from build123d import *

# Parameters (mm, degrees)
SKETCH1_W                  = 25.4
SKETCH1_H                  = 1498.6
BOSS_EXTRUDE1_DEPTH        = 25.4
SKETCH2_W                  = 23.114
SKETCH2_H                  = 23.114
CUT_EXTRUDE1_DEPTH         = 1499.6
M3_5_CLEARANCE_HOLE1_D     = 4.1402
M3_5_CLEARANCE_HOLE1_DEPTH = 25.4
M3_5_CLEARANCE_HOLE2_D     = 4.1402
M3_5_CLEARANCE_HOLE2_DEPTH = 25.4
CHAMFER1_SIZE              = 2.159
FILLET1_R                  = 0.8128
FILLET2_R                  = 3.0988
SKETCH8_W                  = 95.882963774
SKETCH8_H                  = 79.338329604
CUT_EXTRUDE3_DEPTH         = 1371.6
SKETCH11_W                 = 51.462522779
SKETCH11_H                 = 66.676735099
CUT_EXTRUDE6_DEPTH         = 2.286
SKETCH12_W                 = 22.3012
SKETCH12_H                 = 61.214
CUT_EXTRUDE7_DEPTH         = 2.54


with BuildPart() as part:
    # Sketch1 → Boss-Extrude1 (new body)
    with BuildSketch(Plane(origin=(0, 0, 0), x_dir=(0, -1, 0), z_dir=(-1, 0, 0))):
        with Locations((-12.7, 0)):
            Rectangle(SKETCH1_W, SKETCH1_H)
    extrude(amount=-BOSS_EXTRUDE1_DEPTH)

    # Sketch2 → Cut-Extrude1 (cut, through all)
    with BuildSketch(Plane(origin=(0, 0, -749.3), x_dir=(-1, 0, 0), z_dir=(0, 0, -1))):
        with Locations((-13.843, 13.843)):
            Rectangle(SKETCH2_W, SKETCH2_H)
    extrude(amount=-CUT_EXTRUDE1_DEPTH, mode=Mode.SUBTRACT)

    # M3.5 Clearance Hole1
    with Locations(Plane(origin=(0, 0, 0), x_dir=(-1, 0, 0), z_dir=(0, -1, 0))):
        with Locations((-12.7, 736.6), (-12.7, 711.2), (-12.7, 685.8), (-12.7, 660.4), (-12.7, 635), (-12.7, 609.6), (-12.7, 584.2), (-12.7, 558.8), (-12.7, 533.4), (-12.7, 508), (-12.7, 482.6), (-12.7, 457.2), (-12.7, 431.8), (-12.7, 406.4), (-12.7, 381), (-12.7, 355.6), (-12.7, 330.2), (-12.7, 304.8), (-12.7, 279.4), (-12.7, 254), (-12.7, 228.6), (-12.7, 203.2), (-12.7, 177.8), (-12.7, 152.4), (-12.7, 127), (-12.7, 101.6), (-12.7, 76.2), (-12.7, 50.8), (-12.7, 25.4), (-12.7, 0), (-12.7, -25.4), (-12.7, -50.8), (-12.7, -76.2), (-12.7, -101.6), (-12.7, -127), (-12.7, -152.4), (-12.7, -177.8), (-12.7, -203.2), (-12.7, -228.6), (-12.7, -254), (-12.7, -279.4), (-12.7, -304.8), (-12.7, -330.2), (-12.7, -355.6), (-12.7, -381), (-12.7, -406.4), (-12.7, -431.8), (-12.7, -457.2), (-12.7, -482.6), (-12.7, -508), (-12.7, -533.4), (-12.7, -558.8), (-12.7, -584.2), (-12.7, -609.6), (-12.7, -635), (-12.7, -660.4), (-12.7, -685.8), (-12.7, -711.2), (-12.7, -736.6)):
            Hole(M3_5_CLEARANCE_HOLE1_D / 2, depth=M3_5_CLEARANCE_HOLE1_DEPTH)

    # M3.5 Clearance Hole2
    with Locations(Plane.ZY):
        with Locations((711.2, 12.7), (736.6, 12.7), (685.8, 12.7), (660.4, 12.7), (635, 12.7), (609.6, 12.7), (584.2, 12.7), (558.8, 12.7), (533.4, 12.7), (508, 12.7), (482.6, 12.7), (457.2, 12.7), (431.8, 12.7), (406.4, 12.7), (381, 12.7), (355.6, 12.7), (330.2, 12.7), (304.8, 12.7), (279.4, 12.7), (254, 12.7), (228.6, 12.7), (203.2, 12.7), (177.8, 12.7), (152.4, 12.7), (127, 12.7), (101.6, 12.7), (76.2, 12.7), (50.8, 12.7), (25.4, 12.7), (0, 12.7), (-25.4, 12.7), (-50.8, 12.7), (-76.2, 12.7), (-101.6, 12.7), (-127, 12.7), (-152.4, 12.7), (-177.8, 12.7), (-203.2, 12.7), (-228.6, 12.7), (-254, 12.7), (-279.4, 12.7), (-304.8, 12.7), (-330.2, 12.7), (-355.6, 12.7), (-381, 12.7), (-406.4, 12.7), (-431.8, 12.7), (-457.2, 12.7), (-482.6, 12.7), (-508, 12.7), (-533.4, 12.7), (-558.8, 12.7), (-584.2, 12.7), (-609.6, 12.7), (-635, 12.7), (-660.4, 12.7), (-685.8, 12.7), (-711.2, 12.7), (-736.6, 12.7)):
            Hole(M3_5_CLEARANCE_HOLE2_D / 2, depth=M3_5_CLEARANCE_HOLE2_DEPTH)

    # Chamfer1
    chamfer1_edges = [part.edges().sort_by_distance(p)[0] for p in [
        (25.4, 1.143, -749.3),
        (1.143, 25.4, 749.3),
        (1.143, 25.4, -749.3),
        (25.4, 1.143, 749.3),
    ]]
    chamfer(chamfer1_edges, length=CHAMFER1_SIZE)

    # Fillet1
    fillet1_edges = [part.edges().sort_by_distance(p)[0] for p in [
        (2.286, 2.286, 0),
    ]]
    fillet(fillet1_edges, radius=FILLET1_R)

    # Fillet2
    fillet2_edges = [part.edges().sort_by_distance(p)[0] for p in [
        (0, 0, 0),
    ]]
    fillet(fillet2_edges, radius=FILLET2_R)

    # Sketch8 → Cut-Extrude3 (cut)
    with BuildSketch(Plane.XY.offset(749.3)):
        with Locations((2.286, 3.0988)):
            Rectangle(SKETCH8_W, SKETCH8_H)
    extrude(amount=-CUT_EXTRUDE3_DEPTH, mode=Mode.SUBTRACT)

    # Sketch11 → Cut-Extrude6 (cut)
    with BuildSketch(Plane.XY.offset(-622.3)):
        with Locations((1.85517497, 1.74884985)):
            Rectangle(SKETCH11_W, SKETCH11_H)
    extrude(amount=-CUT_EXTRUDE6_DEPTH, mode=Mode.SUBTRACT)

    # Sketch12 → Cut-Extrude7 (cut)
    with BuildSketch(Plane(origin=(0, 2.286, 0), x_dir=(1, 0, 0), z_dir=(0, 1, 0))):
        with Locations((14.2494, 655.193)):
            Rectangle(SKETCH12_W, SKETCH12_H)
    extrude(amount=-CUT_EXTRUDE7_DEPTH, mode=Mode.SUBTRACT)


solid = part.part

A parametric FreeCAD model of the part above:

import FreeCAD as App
import Part
import Sketcher

V = App.Vector
Q = App.Units.Quantity


def edges_at(feature, points):
    """Names of the edges that pass closest to the given points."""
    edges = feature.Shape.Edges
    near = lambda p: min(range(len(edges)), key=lambda i: edges[i].distToShape(Part.Vertex(*p))[0])
    return sorted({f"Edge{near(p) + 1}" for p in points})

doc = App.newDocument("Part")
body = doc.addObject("PartDesign::Body", "Body")

sketch1 = body.newObject("Sketcher::SketchObject", "Sketch")
sketch1.AttachmentSupport = (doc.getObject("YZ_Plane"), [""])
sketch1.MapMode = "FlatFace"
sketch1.addGeometry(Part.LineSegment(V(25, 749, 0), V(25, -749, 0)), False)
sketch1.addGeometry(Part.LineSegment(V(25, -749, 0), V(0, -749, 0)), False)
sketch1.addGeometry(Part.LineSegment(V(0, -749, 0), V(0, 749, 0)), False)
sketch1.addGeometry(Part.LineSegment(V(0, 749, 0), V(25, 749, 0)), False)
sketch1.addConstraint(Sketcher.Constraint("Coincident", 0, 2, 1, 1))
sketch1.addConstraint(Sketcher.Constraint("Coincident", 1, 2, 2, 1))
sketch1.addConstraint(Sketcher.Constraint("Coincident", 2, 2, 3, 1))
sketch1.addConstraint(Sketcher.Constraint("Coincident", 3, 2, 0, 1))
sketch1.addConstraint(Sketcher.Constraint("Vertical", 0))
sketch1.addConstraint(Sketcher.Constraint("Horizontal", 1))
sketch1.addConstraint(Sketcher.Constraint("Vertical", 2))
sketch1.addConstraint(Sketcher.Constraint("Horizontal", 3))
sketch1.addConstraint(Sketcher.Constraint("Symmetric", 1, 2, 2, 2, -1, 1))
sketch1.addConstraint(Sketcher.Constraint("DistanceX", 1, 2, 1, 1, Q("1 in")))
sketch1.addConstraint(Sketcher.Constraint("DistanceY", 0, 2, 0, 1, Q("59 in")))
pad1 = body.newObject("PartDesign::Pad", "Pad")
pad1.Profile = sketch1
pad1.Length = Q("1 in")

sketch2 = body.newObject("Sketcher::SketchObject", "Sketch001")
sketch2.AttachmentSupport = (doc.getObject("XY_Plane"), [""])
sketch2.MapMode = "FlatFace"
sketch2.AttachmentOffset = App.Placement(V(0, 0, -29.5 * 25.4), App.Rotation())
sketch2.addGeometry(Part.LineSegment(V(25, 25, 0), V(25, 2, 0)), False)
sketch2.addGeometry(Part.LineSegment(V(25, 2, 0), V(2, 2, 0)), False)
sketch2.addGeometry(Part.LineSegment(V(2, 2, 0), V(2, 25, 0)), False)
sketch2.addGeometry(Part.LineSegment(V(2, 25, 0), V(25, 25, 0)), False)
sketch2.addConstraint(Sketcher.Constraint("Coincident", 0, 2, 1, 1))
sketch2.addConstraint(Sketcher.Constraint("Coincident", 1, 2, 2, 1))
sketch2.addConstraint(Sketcher.Constraint("Coincident", 2, 2, 3, 1))
sketch2.addConstraint(Sketcher.Constraint("Coincident", 3, 2, 0, 1))
sketch2.addConstraint(Sketcher.Constraint("Vertical", 0))
sketch2.addConstraint(Sketcher.Constraint("Horizontal", 1))
sketch2.addConstraint(Sketcher.Constraint("Vertical", 2))
sketch2.addConstraint(Sketcher.Constraint("Horizontal", 3))
sketch2.addConstraint(Sketcher.Constraint("Equal", 3, 0))
sketch2.addConstraint(Sketcher.Constraint("DistanceX", -1, 1, 0, 2, Q("1 in")))
sketch2.addConstraint(Sketcher.Constraint("DistanceY", -1, 1, 2, 2, Q("1 in")))
sketch2.addConstraint(Sketcher.Constraint("DistanceX", 1, 2, 1, 1, Q("0.91 in")))
pocket1 = body.newObject("PartDesign::Pocket", "Pocket")
pocket1.Profile = sketch2
pocket1.Type = "ThroughAll"
pocket1.Reversed = True

sketch3 = body.newObject("Sketcher::SketchObject", "Sketch002")
sketch3.AttachmentSupport = (doc.getObject("XZ_Plane"), [""])
sketch3.MapMode = "FlatFace"
sketch3.addGeometry(Part.Circle(V(12.7, -736.6, 0), V(0, 0, 1), 2.1), False)
sketch3.addGeometry(Part.Circle(V(12.7, -711.2, 0), V(0, 0, 1), 2.1), False)
sketch3.addGeometry(Part.Circle(V(12.7, -685.8, 0), V(0, 0, 1), 2.1), False)
sketch3.addGeometry(Part.Circle(V(12.7, -660.4, 0), V(0, 0, 1), 2.1), False)
sketch3.addGeometry(Part.Circle(V(12.7, -635, 0), V(0, 0, 1), 2.1), False)
sketch3.addGeometry(Part.Circle(V(12.7, -609.6, 0), V(0, 0, 1), 2.1), False)
sketch3.addGeometry(Part.Circle(V(12.7, -584.2, 0), V(0, 0, 1), 2.1), False)
sketch3.addGeometry(Part.Circle(V(12.7, -558.8, 0), V(0, 0, 1), 2.1), False)
sketch3.addGeometry(Part.Circle(V(12.7, -533.4, 0), V(0, 0, 1), 2.1), False)
sketch3.addGeometry(Part.Circle(V(12.7, -508, 0), V(0, 0, 1), 2.1), False)
sketch3.addGeometry(Part.Circle(V(12.7, -482.6, 0), V(0, 0, 1), 2.1), False)
sketch3.addGeometry(Part.Circle(V(12.7, -457.2, 0), V(0, 0, 1), 2.1), False)
sketch3.addGeometry(Part.Circle(V(12.7, -431.8, 0), V(0, 0, 1), 2.1), False)
sketch3.addGeometry(Part.Circle(V(12.7, -406.4, 0), V(0, 0, 1), 2.1), False)
sketch3.addGeometry(Part.Circle(V(12.7, -381, 0), V(0, 0, 1), 2.1), False)
sketch3.addGeometry(Part.Circle(V(12.7, -355.6, 0), V(0, 0, 1), 2.1), False)
sketch3.addGeometry(Part.Circle(V(12.7, -330.2, 0), V(0, 0, 1), 2.1), False)
sketch3.addGeometry(Part.Circle(V(12.7, -304.8, 0), V(0, 0, 1), 2.1), False)
sketch3.addGeometry(Part.Circle(V(12.7, -279.4, 0), V(0, 0, 1), 2.1), False)
sketch3.addGeometry(Part.Circle(V(12.7, -254, 0), V(0, 0, 1), 2.1), False)
sketch3.addGeometry(Part.Circle(V(12.7, -228.6, 0), V(0, 0, 1), 2.1), False)
sketch3.addGeometry(Part.Circle(V(12.7, -203.2, 0), V(0, 0, 1), 2.1), False)
sketch3.addGeometry(Part.Circle(V(12.7, -177.8, 0), V(0, 0, 1), 2.1), False)
sketch3.addGeometry(Part.Circle(V(12.7, -152.4, 0), V(0, 0, 1), 2.1), False)
sketch3.addGeometry(Part.Circle(V(12.7, -127, 0), V(0, 0, 1), 2.1), False)
sketch3.addGeometry(Part.Circle(V(12.7, -101.6, 0), V(0, 0, 1), 2.1), False)
sketch3.addGeometry(Part.Circle(V(12.7, -76.2, 0), V(0, 0, 1), 2.1), False)
sketch3.addGeometry(Part.Circle(V(12.7, -50.8, 0), V(0, 0, 1), 2.1), False)
sketch3.addGeometry(Part.Circle(V(12.7, -25.4, 0), V(0, 0, 1), 2.1), False)
sketch3.addGeometry(Part.Circle(V(12.7, 0, 0), V(0, 0, 1), 2.1), False)
sketch3.addGeometry(Part.Circle(V(12.7, 25.4, 0), V(0, 0, 1), 2.1), False)
sketch3.addGeometry(Part.Circle(V(12.7, 50.8, 0), V(0, 0, 1), 2.1), False)
sketch3.addGeometry(Part.Circle(V(12.7, 76.2, 0), V(0, 0, 1), 2.1), False)
sketch3.addGeometry(Part.Circle(V(12.7, 101.6, 0), V(0, 0, 1), 2.1), False)
sketch3.addGeometry(Part.Circle(V(12.7, 127, 0), V(0, 0, 1), 2.1), False)
sketch3.addGeometry(Part.Circle(V(12.7, 152.4, 0), V(0, 0, 1), 2.1), False)
sketch3.addGeometry(Part.Circle(V(12.7, 177.8, 0), V(0, 0, 1), 2.1), False)
sketch3.addGeometry(Part.Circle(V(12.7, 203.2, 0), V(0, 0, 1), 2.1), False)
sketch3.addGeometry(Part.Circle(V(12.7, 228.6, 0), V(0, 0, 1), 2.1), False)
sketch3.addGeometry(Part.Circle(V(12.7, 254, 0), V(0, 0, 1), 2.1), False)
sketch3.addGeometry(Part.Circle(V(12.7, 279.4, 0), V(0, 0, 1), 2.1), False)
sketch3.addGeometry(Part.Circle(V(12.7, 304.8, 0), V(0, 0, 1), 2.1), False)
sketch3.addGeometry(Part.Circle(V(12.7, 330.2, 0), V(0, 0, 1), 2.1), False)
sketch3.addGeometry(Part.Circle(V(12.7, 355.6, 0), V(0, 0, 1), 2.1), False)
sketch3.addGeometry(Part.Circle(V(12.7, 381, 0), V(0, 0, 1), 2.1), False)
sketch3.addGeometry(Part.Circle(V(12.7, 406.4, 0), V(0, 0, 1), 2.1), False)
sketch3.addGeometry(Part.Circle(V(12.7, 431.8, 0), V(0, 0, 1), 2.1), False)
sketch3.addGeometry(Part.Circle(V(12.7, 457.2, 0), V(0, 0, 1), 2.1), False)
sketch3.addGeometry(Part.Circle(V(12.7, 482.6, 0), V(0, 0, 1), 2.1), False)
sketch3.addGeometry(Part.Circle(V(12.7, 508, 0), V(0, 0, 1), 2.1), False)
sketch3.addGeometry(Part.Circle(V(12.7, 533.4, 0), V(0, 0, 1), 2.1), False)
sketch3.addGeometry(Part.Circle(V(12.7, 558.8, 0), V(0, 0, 1), 2.1), False)
sketch3.addGeometry(Part.Circle(V(12.7, 584.2, 0), V(0, 0, 1), 2.1), False)
sketch3.addGeometry(Part.Circle(V(12.7, 609.6, 0), V(0, 0, 1), 2.1), False)
sketch3.addGeometry(Part.Circle(V(12.7, 635, 0), V(0, 0, 1), 2.1), False)
sketch3.addGeometry(Part.Circle(V(12.7, 660.4, 0), V(0, 0, 1), 2.1), False)
sketch3.addGeometry(Part.Circle(V(12.7, 685.8, 0), V(0, 0, 1), 2.1), False)
sketch3.addGeometry(Part.Circle(V(12.7, 711.2, 0), V(0, 0, 1), 2.1), False)
sketch3.addGeometry(Part.Circle(V(12.7, 736.6, 0), V(0, 0, 1), 2.1), False)
sketch3.addConstraint(Sketcher.Constraint("Equal", 0, 1))
sketch3.addConstraint(Sketcher.Constraint("Equal", 1, 2))
sketch3.addConstraint(Sketcher.Constraint("Equal", 2, 3))
sketch3.addConstraint(Sketcher.Constraint("Equal", 3, 4))
sketch3.addConstraint(Sketcher.Constraint("Equal", 4, 5))
sketch3.addConstraint(Sketcher.Constraint("Equal", 5, 6))
sketch3.addConstraint(Sketcher.Constraint("Equal", 6, 7))
sketch3.addConstraint(Sketcher.Constraint("Equal", 7, 8))
sketch3.addConstraint(Sketcher.Constraint("Equal", 8, 9))
sketch3.addConstraint(Sketcher.Constraint("Equal", 9, 10))
sketch3.addConstraint(Sketcher.Constraint("Equal", 10, 11))
sketch3.addConstraint(Sketcher.Constraint("Equal", 11, 12))
sketch3.addConstraint(Sketcher.Constraint("Equal", 12, 13))
sketch3.addConstraint(Sketcher.Constraint("Equal", 13, 14))
sketch3.addConstraint(Sketcher.Constraint("Equal", 14, 15))
sketch3.addConstraint(Sketcher.Constraint("Equal", 15, 16))
sketch3.addConstraint(Sketcher.Constraint("Equal", 16, 17))
sketch3.addConstraint(Sketcher.Constraint("Equal", 17, 18))
sketch3.addConstraint(Sketcher.Constraint("Equal", 18, 19))
sketch3.addConstraint(Sketcher.Constraint("Equal", 19, 20))
sketch3.addConstraint(Sketcher.Constraint("Equal", 20, 21))
sketch3.addConstraint(Sketcher.Constraint("Equal", 21, 22))
sketch3.addConstraint(Sketcher.Constraint("Equal", 22, 23))
sketch3.addConstraint(Sketcher.Constraint("Equal", 23, 24))
sketch3.addConstraint(Sketcher.Constraint("Equal", 24, 25))
sketch3.addConstraint(Sketcher.Constraint("Equal", 25, 26))
sketch3.addConstraint(Sketcher.Constraint("Equal", 26, 27))
sketch3.addConstraint(Sketcher.Constraint("Equal", 27, 28))
sketch3.addConstraint(Sketcher.Constraint("Equal", 28, 29))
sketch3.addConstraint(Sketcher.Constraint("Equal", 29, 30))
sketch3.addConstraint(Sketcher.Constraint("Equal", 30, 31))
sketch3.addConstraint(Sketcher.Constraint("Equal", 31, 32))
sketch3.addConstraint(Sketcher.Constraint("Equal", 32, 33))
sketch3.addConstraint(Sketcher.Constraint("Equal", 33, 34))
sketch3.addConstraint(Sketcher.Constraint("Equal", 34, 35))
sketch3.addConstraint(Sketcher.Constraint("Equal", 35, 36))
sketch3.addConstraint(Sketcher.Constraint("Equal", 36, 37))
sketch3.addConstraint(Sketcher.Constraint("Equal", 37, 38))
sketch3.addConstraint(Sketcher.Constraint("Equal", 38, 39))
sketch3.addConstraint(Sketcher.Constraint("Equal", 39, 40))
sketch3.addConstraint(Sketcher.Constraint("Equal", 40, 41))
sketch3.addConstraint(Sketcher.Constraint("Equal", 41, 42))
sketch3.addConstraint(Sketcher.Constraint("Equal", 42, 43))
sketch3.addConstraint(Sketcher.Constraint("Equal", 43, 44))
sketch3.addConstraint(Sketcher.Constraint("Equal", 44, 45))
sketch3.addConstraint(Sketcher.Constraint("Equal", 45, 46))
sketch3.addConstraint(Sketcher.Constraint("Equal", 46, 47))
sketch3.addConstraint(Sketcher.Constraint("Equal", 47, 48))
sketch3.addConstraint(Sketcher.Constraint("Equal", 48, 49))
sketch3.addConstraint(Sketcher.Constraint("Equal", 49, 50))
sketch3.addConstraint(Sketcher.Constraint("Equal", 50, 51))
sketch3.addConstraint(Sketcher.Constraint("Equal", 51, 52))
sketch3.addConstraint(Sketcher.Constraint("Equal", 52, 53))
sketch3.addConstraint(Sketcher.Constraint("Equal", 53, 54))
sketch3.addConstraint(Sketcher.Constraint("Equal", 54, 55))
sketch3.addConstraint(Sketcher.Constraint("Equal", 55, 56))
sketch3.addConstraint(Sketcher.Constraint("Equal", 56, 57))
sketch3.addConstraint(Sketcher.Constraint("Equal", 57, 58))
sketch3.addConstraint(Sketcher.Constraint("Symmetric", 28, 3, 30, 3, -1))
sketch3.addConstraint(Sketcher.Constraint("Symmetric", 27, 3, 31, 3, -1))
sketch3.addConstraint(Sketcher.Constraint("Symmetric", 26, 3, 32, 3, -1))
sketch3.addConstraint(Sketcher.Constraint("Symmetric", 25, 3, 33, 3, -1))
sketch3.addConstraint(Sketcher.Constraint("Symmetric", 24, 3, 34, 3, -1))
sketch3.addConstraint(Sketcher.Constraint("Symmetric", 23, 3, 35, 3, -1))
sketch3.addConstraint(Sketcher.Constraint("Symmetric", 22, 3, 36, 3, -1))
sketch3.addConstraint(Sketcher.Constraint("Symmetric", 21, 3, 37, 3, -1))
sketch3.addConstraint(Sketcher.Constraint("Symmetric", 20, 3, 38, 3, -1))
sketch3.addConstraint(Sketcher.Constraint("Symmetric", 19, 3, 39, 3, -1))
sketch3.addConstraint(Sketcher.Constraint("Symmetric", 18, 3, 40, 3, -1))
sketch3.addConstraint(Sketcher.Constraint("Symmetric", 17, 3, 41, 3, -1))
sketch3.addConstraint(Sketcher.Constraint("Symmetric", 16, 3, 42, 3, -1))
sketch3.addConstraint(Sketcher.Constraint("Symmetric", 15, 3, 43, 3, -1))
sketch3.addConstraint(Sketcher.Constraint("Symmetric", 14, 3, 44, 3, -1))
sketch3.addConstraint(Sketcher.Constraint("Symmetric", 13, 3, 45, 3, -1))
sketch3.addConstraint(Sketcher.Constraint("Symmetric", 12, 3, 46, 3, -1))
sketch3.addConstraint(Sketcher.Constraint("Symmetric", 11, 3, 47, 3, -1))
sketch3.addConstraint(Sketcher.Constraint("Symmetric", 10, 3, 48, 3, -1))
sketch3.addConstraint(Sketcher.Constraint("Symmetric", 9, 3, 49, 3, -1))
sketch3.addConstraint(Sketcher.Constraint("Symmetric", 8, 3, 50, 3, -1))
sketch3.addConstraint(Sketcher.Constraint("Symmetric", 7, 3, 51, 3, -1))
sketch3.addConstraint(Sketcher.Constraint("Symmetric", 6, 3, 52, 3, -1))
sketch3.addConstraint(Sketcher.Constraint("Symmetric", 5, 3, 53, 3, -1))
sketch3.addConstraint(Sketcher.Constraint("Symmetric", 4, 3, 54, 3, -1))
sketch3.addConstraint(Sketcher.Constraint("Symmetric", 3, 3, 55, 3, -1))
sketch3.addConstraint(Sketcher.Constraint("Symmetric", 2, 3, 56, 3, -1))
sketch3.addConstraint(Sketcher.Constraint("Symmetric", 1, 3, 57, 3, -1))
sketch3.addConstraint(Sketcher.Constraint("Symmetric", 0, 3, 58, 3, -1))
sketch3.addConstraint(Sketcher.Constraint("PointOnObject", 29, 3, -1))
sketch3.addConstraint(Sketcher.Constraint("Vertical", 0, 3, 1, 3))
sketch3.addConstraint(Sketcher.Constraint("Vertical", 1, 3, 2, 3))
sketch3.addConstraint(Sketcher.Constraint("Vertical", 2, 3, 3, 3))
sketch3.addConstraint(Sketcher.Constraint("Vertical", 3, 3, 4, 3))
sketch3.addConstraint(Sketcher.Constraint("Vertical", 4, 3, 5, 3))
sketch3.addConstraint(Sketcher.Constraint("Vertical", 5, 3, 6, 3))
sketch3.addConstraint(Sketcher.Constraint("Vertical", 6, 3, 7, 3))
sketch3.addConstraint(Sketcher.Constraint("Vertical", 7, 3, 8, 3))
sketch3.addConstraint(Sketcher.Constraint("Vertical", 8, 3, 9, 3))
sketch3.addConstraint(Sketcher.Constraint("Vertical", 9, 3, 10, 3))
sketch3.addConstraint(Sketcher.Constraint("Vertical", 10, 3, 11, 3))
sketch3.addConstraint(Sketcher.Constraint("Vertical", 11, 3, 12, 3))
sketch3.addConstraint(Sketcher.Constraint("Vertical", 12, 3, 13, 3))
sketch3.addConstraint(Sketcher.Constraint("Vertical", 13, 3, 14, 3))
sketch3.addConstraint(Sketcher.Constraint("Vertical", 14, 3, 15, 3))
sketch3.addConstraint(Sketcher.Constraint("Vertical", 15, 3, 16, 3))
sketch3.addConstraint(Sketcher.Constraint("Vertical", 16, 3, 17, 3))
sketch3.addConstraint(Sketcher.Constraint("Vertical", 17, 3, 18, 3))
sketch3.addConstraint(Sketcher.Constraint("Vertical", 18, 3, 19, 3))
sketch3.addConstraint(Sketcher.Constraint("Vertical", 19, 3, 20, 3))
sketch3.addConstraint(Sketcher.Constraint("Vertical", 20, 3, 21, 3))
sketch3.addConstraint(Sketcher.Constraint("Vertical", 21, 3, 22, 3))
sketch3.addConstraint(Sketcher.Constraint("Vertical", 22, 3, 23, 3))
sketch3.addConstraint(Sketcher.Constraint("Vertical", 23, 3, 24, 3))
sketch3.addConstraint(Sketcher.Constraint("Vertical", 24, 3, 25, 3))
sketch3.addConstraint(Sketcher.Constraint("Vertical", 25, 3, 26, 3))
sketch3.addConstraint(Sketcher.Constraint("Vertical", 26, 3, 27, 3))
sketch3.addConstraint(Sketcher.Constraint("Vertical", 27, 3, 28, 3))
sketch3.addConstraint(Sketcher.Constraint("Vertical", 28, 3, 29, 3))
sketch3.addConstraint(Sketcher.Constraint("Diameter", 0, Q("0.163 in")))
sketch3.addConstraint(Sketcher.Constraint("DistanceY", 0, 3, -1, 1, Q("29 in")))
sketch3.addConstraint(Sketcher.Constraint("DistanceY", 1, 3, -1, 1, Q("28 in")))
sketch3.addConstraint(Sketcher.Constraint("DistanceY", 2, 3, -1, 1, Q("27 in")))
sketch3.addConstraint(Sketcher.Constraint("DistanceY", 3, 3, -1, 1, Q("26 in")))
sketch3.addConstraint(Sketcher.Constraint("DistanceY", 4, 3, -1, 1, Q("25 in")))
sketch3.addConstraint(Sketcher.Constraint("DistanceY", 5, 3, -1, 1, Q("24 in")))
sketch3.addConstraint(Sketcher.Constraint("DistanceY", 6, 3, -1, 1, Q("23 in")))
sketch3.addConstraint(Sketcher.Constraint("DistanceY", 7, 3, -1, 1, Q("22 in")))
sketch3.addConstraint(Sketcher.Constraint("DistanceY", 8, 3, -1, 1, Q("21 in")))
sketch3.addConstraint(Sketcher.Constraint("DistanceY", 9, 3, -1, 1, Q("20 in")))
sketch3.addConstraint(Sketcher.Constraint("DistanceY", 10, 3, -1, 1, Q("19 in")))
sketch3.addConstraint(Sketcher.Constraint("DistanceY", 11, 3, -1, 1, Q("18 in")))
sketch3.addConstraint(Sketcher.Constraint("DistanceY", 12, 3, -1, 1, Q("17 in")))
sketch3.addConstraint(Sketcher.Constraint("DistanceY", 13, 3, -1, 1, Q("16 in")))
sketch3.addConstraint(Sketcher.Constraint("DistanceY", 14, 3, -1, 1, Q("15 in")))
sketch3.addConstraint(Sketcher.Constraint("DistanceY", 15, 3, -1, 1, Q("14 in")))
sketch3.addConstraint(Sketcher.Constraint("DistanceY", 16, 3, -1, 1, Q("13 in")))
sketch3.addConstraint(Sketcher.Constraint("DistanceY", 17, 3, -1, 1, Q("12 in")))
sketch3.addConstraint(Sketcher.Constraint("DistanceY", 18, 3, -1, 1, Q("11 in")))
sketch3.addConstraint(Sketcher.Constraint("DistanceY", 19, 3, -1, 1, Q("10 in")))
sketch3.addConstraint(Sketcher.Constraint("DistanceY", 20, 3, -1, 1, Q("9 in")))
sketch3.addConstraint(Sketcher.Constraint("DistanceY", 21, 3, -1, 1, Q("8 in")))
sketch3.addConstraint(Sketcher.Constraint("DistanceY", 22, 3, -1, 1, Q("7 in")))
sketch3.addConstraint(Sketcher.Constraint("DistanceY", 23, 3, -1, 1, Q("6 in")))
sketch3.addConstraint(Sketcher.Constraint("DistanceY", 24, 3, -1, 1, Q("5 in")))
sketch3.addConstraint(Sketcher.Constraint("DistanceY", 25, 3, -1, 1, Q("4 in")))
sketch3.addConstraint(Sketcher.Constraint("DistanceY", 26, 3, -1, 1, Q("3 in")))
sketch3.addConstraint(Sketcher.Constraint("DistanceY", 27, 3, -1, 1, Q("2 in")))
sketch3.addConstraint(Sketcher.Constraint("DistanceY", 28, 3, -1, 1, Q("1 in")))
sketch3.addConstraint(Sketcher.Constraint("DistanceX", -1, 1, 0, 3, Q("0.5 in")))
doc.recompute()
hole = body.newObject("PartDesign::Hole", "Hole")
hole.Profile = sketch3
hole.ThreadType = "None"
hole.Diameter = Q("0.163 in")
hole.DepthType = "Dimension"
hole.Depth = Q("1 in")
hole.DrillPoint = "Flat"

sketch4 = body.newObject("Sketcher::SketchObject", "Sketch003")
sketch4.AttachmentSupport = (doc.getObject("YZ_Plane"), [""])
sketch4.MapMode = "FlatFace"
sketch4.addGeometry(Part.Circle(V(12.7, 711.2, 0), V(0, 0, 1), 2.1), False)
sketch4.addGeometry(Part.Circle(V(12.7, 736.6, 0), V(0, 0, 1), 2.1), False)
sketch4.addGeometry(Part.Circle(V(12.7, 685.8, 0), V(0, 0, 1), 2.1), False)
sketch4.addGeometry(Part.Circle(V(12.7, 660.4, 0), V(0, 0, 1), 2.1), False)
sketch4.addGeometry(Part.Circle(V(12.7, 635, 0), V(0, 0, 1), 2.1), False)
sketch4.addGeometry(Part.Circle(V(12.7, 609.6, 0), V(0, 0, 1), 2.1), False)
sketch4.addGeometry(Part.Circle(V(12.7, 584.2, 0), V(0, 0, 1), 2.1), False)
sketch4.addGeometry(Part.Circle(V(12.7, 558.8, 0), V(0, 0, 1), 2.1), False)
sketch4.addGeometry(Part.Circle(V(12.7, 533.4, 0), V(0, 0, 1), 2.1), False)
sketch4.addGeometry(Part.Circle(V(12.7, 508, 0), V(0, 0, 1), 2.1), False)
sketch4.addGeometry(Part.Circle(V(12.7, 482.6, 0), V(0, 0, 1), 2.1), False)
sketch4.addGeometry(Part.Circle(V(12.7, 457.2, 0), V(0, 0, 1), 2.1), False)
sketch4.addGeometry(Part.Circle(V(12.7, 431.8, 0), V(0, 0, 1), 2.1), False)
sketch4.addGeometry(Part.Circle(V(12.7, 406.4, 0), V(0, 0, 1), 2.1), False)
sketch4.addGeometry(Part.Circle(V(12.7, 381, 0), V(0, 0, 1), 2.1), False)
sketch4.addGeometry(Part.Circle(V(12.7, 355.6, 0), V(0, 0, 1), 2.1), False)
sketch4.addGeometry(Part.Circle(V(12.7, 330.2, 0), V(0, 0, 1), 2.1), False)
sketch4.addGeometry(Part.Circle(V(12.7, 304.8, 0), V(0, 0, 1), 2.1), False)
sketch4.addGeometry(Part.Circle(V(12.7, 279.4, 0), V(0, 0, 1), 2.1), False)
sketch4.addGeometry(Part.Circle(V(12.7, 254, 0), V(0, 0, 1), 2.1), False)
sketch4.addGeometry(Part.Circle(V(12.7, 228.6, 0), V(0, 0, 1), 2.1), False)
sketch4.addGeometry(Part.Circle(V(12.7, 203.2, 0), V(0, 0, 1), 2.1), False)
sketch4.addGeometry(Part.Circle(V(12.7, 177.8, 0), V(0, 0, 1), 2.1), False)
sketch4.addGeometry(Part.Circle(V(12.7, 152.4, 0), V(0, 0, 1), 2.1), False)
sketch4.addGeometry(Part.Circle(V(12.7, 127, 0), V(0, 0, 1), 2.1), False)
sketch4.addGeometry(Part.Circle(V(12.7, 101.6, 0), V(0, 0, 1), 2.1), False)
sketch4.addGeometry(Part.Circle(V(12.7, 76.2, 0), V(0, 0, 1), 2.1), False)
sketch4.addGeometry(Part.Circle(V(12.7, 50.8, 0), V(0, 0, 1), 2.1), False)
sketch4.addGeometry(Part.Circle(V(12.7, 25.4, 0), V(0, 0, 1), 2.1), False)
sketch4.addGeometry(Part.Circle(V(12.7, 0, 0), V(0, 0, 1), 2.1), False)
sketch4.addGeometry(Part.Circle(V(12.7, -25.4, 0), V(0, 0, 1), 2.1), False)
sketch4.addGeometry(Part.Circle(V(12.7, -50.8, 0), V(0, 0, 1), 2.1), False)
sketch4.addGeometry(Part.Circle(V(12.7, -76.2, 0), V(0, 0, 1), 2.1), False)
sketch4.addGeometry(Part.Circle(V(12.7, -101.6, 0), V(0, 0, 1), 2.1), False)
sketch4.addGeometry(Part.Circle(V(12.7, -127, 0), V(0, 0, 1), 2.1), False)
sketch4.addGeometry(Part.Circle(V(12.7, -152.4, 0), V(0, 0, 1), 2.1), False)
sketch4.addGeometry(Part.Circle(V(12.7, -177.8, 0), V(0, 0, 1), 2.1), False)
sketch4.addGeometry(Part.Circle(V(12.7, -203.2, 0), V(0, 0, 1), 2.1), False)
sketch4.addGeometry(Part.Circle(V(12.7, -228.6, 0), V(0, 0, 1), 2.1), False)
sketch4.addGeometry(Part.Circle(V(12.7, -254, 0), V(0, 0, 1), 2.1), False)
sketch4.addGeometry(Part.Circle(V(12.7, -279.4, 0), V(0, 0, 1), 2.1), False)
sketch4.addGeometry(Part.Circle(V(12.7, -304.8, 0), V(0, 0, 1), 2.1), False)
sketch4.addGeometry(Part.Circle(V(12.7, -330.2, 0), V(0, 0, 1), 2.1), False)
sketch4.addGeometry(Part.Circle(V(12.7, -355.6, 0), V(0, 0, 1), 2.1), False)
sketch4.addGeometry(Part.Circle(V(12.7, -381, 0), V(0, 0, 1), 2.1), False)
sketch4.addGeometry(Part.Circle(V(12.7, -406.4, 0), V(0, 0, 1), 2.1), False)
sketch4.addGeometry(Part.Circle(V(12.7, -431.8, 0), V(0, 0, 1), 2.1), False)
sketch4.addGeometry(Part.Circle(V(12.7, -457.2, 0), V(0, 0, 1), 2.1), False)
sketch4.addGeometry(Part.Circle(V(12.7, -482.6, 0), V(0, 0, 1), 2.1), False)
sketch4.addGeometry(Part.Circle(V(12.7, -508, 0), V(0, 0, 1), 2.1), False)
sketch4.addGeometry(Part.Circle(V(12.7, -533.4, 0), V(0, 0, 1), 2.1), False)
sketch4.addGeometry(Part.Circle(V(12.7, -558.8, 0), V(0, 0, 1), 2.1), False)
sketch4.addGeometry(Part.Circle(V(12.7, -584.2, 0), V(0, 0, 1), 2.1), False)
sketch4.addGeometry(Part.Circle(V(12.7, -609.6, 0), V(0, 0, 1), 2.1), False)
sketch4.addGeometry(Part.Circle(V(12.7, -635, 0), V(0, 0, 1), 2.1), False)
sketch4.addGeometry(Part.Circle(V(12.7, -660.4, 0), V(0, 0, 1), 2.1), False)
sketch4.addGeometry(Part.Circle(V(12.7, -685.8, 0), V(0, 0, 1), 2.1), False)
sketch4.addGeometry(Part.Circle(V(12.7, -711.2, 0), V(0, 0, 1), 2.1), False)
sketch4.addGeometry(Part.Circle(V(12.7, -736.6, 0), V(0, 0, 1), 2.1), False)
sketch4.addConstraint(Sketcher.Constraint("Equal", 0, 1))
sketch4.addConstraint(Sketcher.Constraint("Equal", 1, 2))
sketch4.addConstraint(Sketcher.Constraint("Equal", 2, 3))
sketch4.addConstraint(Sketcher.Constraint("Equal", 3, 4))
sketch4.addConstraint(Sketcher.Constraint("Equal", 4, 5))
sketch4.addConstraint(Sketcher.Constraint("Equal", 5, 6))
sketch4.addConstraint(Sketcher.Constraint("Equal", 6, 7))
sketch4.addConstraint(Sketcher.Constraint("Equal", 7, 8))
sketch4.addConstraint(Sketcher.Constraint("Equal", 8, 9))
sketch4.addConstraint(Sketcher.Constraint("Equal", 9, 10))
sketch4.addConstraint(Sketcher.Constraint("Equal", 10, 11))
sketch4.addConstraint(Sketcher.Constraint("Equal", 11, 12))
sketch4.addConstraint(Sketcher.Constraint("Equal", 12, 13))
sketch4.addConstraint(Sketcher.Constraint("Equal", 13, 14))
sketch4.addConstraint(Sketcher.Constraint("Equal", 14, 15))
sketch4.addConstraint(Sketcher.Constraint("Equal", 15, 16))
sketch4.addConstraint(Sketcher.Constraint("Equal", 16, 17))
sketch4.addConstraint(Sketcher.Constraint("Equal", 17, 18))
sketch4.addConstraint(Sketcher.Constraint("Equal", 18, 19))
sketch4.addConstraint(Sketcher.Constraint("Equal", 19, 20))
sketch4.addConstraint(Sketcher.Constraint("Equal", 20, 21))
sketch4.addConstraint(Sketcher.Constraint("Equal", 21, 22))
sketch4.addConstraint(Sketcher.Constraint("Equal", 22, 23))
sketch4.addConstraint(Sketcher.Constraint("Equal", 23, 24))
sketch4.addConstraint(Sketcher.Constraint("Equal", 24, 25))
sketch4.addConstraint(Sketcher.Constraint("Equal", 25, 26))
sketch4.addConstraint(Sketcher.Constraint("Equal", 26, 27))
sketch4.addConstraint(Sketcher.Constraint("Equal", 27, 28))
sketch4.addConstraint(Sketcher.Constraint("Equal", 28, 29))
sketch4.addConstraint(Sketcher.Constraint("Equal", 29, 30))
sketch4.addConstraint(Sketcher.Constraint("Equal", 30, 31))
sketch4.addConstraint(Sketcher.Constraint("Equal", 31, 32))
sketch4.addConstraint(Sketcher.Constraint("Equal", 32, 33))
sketch4.addConstraint(Sketcher.Constraint("Equal", 33, 34))
sketch4.addConstraint(Sketcher.Constraint("Equal", 34, 35))
sketch4.addConstraint(Sketcher.Constraint("Equal", 35, 36))
sketch4.addConstraint(Sketcher.Constraint("Equal", 36, 37))
sketch4.addConstraint(Sketcher.Constraint("Equal", 37, 38))
sketch4.addConstraint(Sketcher.Constraint("Equal", 38, 39))
sketch4.addConstraint(Sketcher.Constraint("Equal", 39, 40))
sketch4.addConstraint(Sketcher.Constraint("Equal", 40, 41))
sketch4.addConstraint(Sketcher.Constraint("Equal", 41, 42))
sketch4.addConstraint(Sketcher.Constraint("Equal", 42, 43))
sketch4.addConstraint(Sketcher.Constraint("Equal", 43, 44))
sketch4.addConstraint(Sketcher.Constraint("Equal", 44, 45))
sketch4.addConstraint(Sketcher.Constraint("Equal", 45, 46))
sketch4.addConstraint(Sketcher.Constraint("Equal", 46, 47))
sketch4.addConstraint(Sketcher.Constraint("Equal", 47, 48))
sketch4.addConstraint(Sketcher.Constraint("Equal", 48, 49))
sketch4.addConstraint(Sketcher.Constraint("Equal", 49, 50))
sketch4.addConstraint(Sketcher.Constraint("Equal", 50, 51))
sketch4.addConstraint(Sketcher.Constraint("Equal", 51, 52))
sketch4.addConstraint(Sketcher.Constraint("Equal", 52, 53))
sketch4.addConstraint(Sketcher.Constraint("Equal", 53, 54))
sketch4.addConstraint(Sketcher.Constraint("Equal", 54, 55))
sketch4.addConstraint(Sketcher.Constraint("Equal", 55, 56))
sketch4.addConstraint(Sketcher.Constraint("Equal", 56, 57))
sketch4.addConstraint(Sketcher.Constraint("Equal", 57, 58))
sketch4.addConstraint(Sketcher.Constraint("Symmetric", 28, 3, 30, 3, -1))
sketch4.addConstraint(Sketcher.Constraint("Symmetric", 27, 3, 31, 3, -1))
sketch4.addConstraint(Sketcher.Constraint("Symmetric", 26, 3, 32, 3, -1))
sketch4.addConstraint(Sketcher.Constraint("Symmetric", 25, 3, 33, 3, -1))
sketch4.addConstraint(Sketcher.Constraint("Symmetric", 24, 3, 34, 3, -1))
sketch4.addConstraint(Sketcher.Constraint("Symmetric", 23, 3, 35, 3, -1))
sketch4.addConstraint(Sketcher.Constraint("Symmetric", 22, 3, 36, 3, -1))
sketch4.addConstraint(Sketcher.Constraint("Symmetric", 21, 3, 37, 3, -1))
sketch4.addConstraint(Sketcher.Constraint("Symmetric", 20, 3, 38, 3, -1))
sketch4.addConstraint(Sketcher.Constraint("Symmetric", 19, 3, 39, 3, -1))
sketch4.addConstraint(Sketcher.Constraint("Symmetric", 18, 3, 40, 3, -1))
sketch4.addConstraint(Sketcher.Constraint("Symmetric", 17, 3, 41, 3, -1))
sketch4.addConstraint(Sketcher.Constraint("Symmetric", 16, 3, 42, 3, -1))
sketch4.addConstraint(Sketcher.Constraint("Symmetric", 15, 3, 43, 3, -1))
sketch4.addConstraint(Sketcher.Constraint("Symmetric", 14, 3, 44, 3, -1))
sketch4.addConstraint(Sketcher.Constraint("Symmetric", 13, 3, 45, 3, -1))
sketch4.addConstraint(Sketcher.Constraint("Symmetric", 12, 3, 46, 3, -1))
sketch4.addConstraint(Sketcher.Constraint("Symmetric", 11, 3, 47, 3, -1))
sketch4.addConstraint(Sketcher.Constraint("Symmetric", 10, 3, 48, 3, -1))
sketch4.addConstraint(Sketcher.Constraint("Symmetric", 9, 3, 49, 3, -1))
sketch4.addConstraint(Sketcher.Constraint("Symmetric", 8, 3, 50, 3, -1))
sketch4.addConstraint(Sketcher.Constraint("Symmetric", 7, 3, 51, 3, -1))
sketch4.addConstraint(Sketcher.Constraint("Symmetric", 6, 3, 52, 3, -1))
sketch4.addConstraint(Sketcher.Constraint("Symmetric", 5, 3, 53, 3, -1))
sketch4.addConstraint(Sketcher.Constraint("Symmetric", 4, 3, 54, 3, -1))
sketch4.addConstraint(Sketcher.Constraint("Symmetric", 3, 3, 55, 3, -1))
sketch4.addConstraint(Sketcher.Constraint("Symmetric", 2, 3, 56, 3, -1))
sketch4.addConstraint(Sketcher.Constraint("Symmetric", 0, 3, 57, 3, -1))
sketch4.addConstraint(Sketcher.Constraint("Symmetric", 1, 3, 58, 3, -1))
sketch4.addConstraint(Sketcher.Constraint("PointOnObject", 29, 3, -1))
sketch4.addConstraint(Sketcher.Constraint("Vertical", 0, 3, 1, 3))
sketch4.addConstraint(Sketcher.Constraint("Vertical", 1, 3, 2, 3))
sketch4.addConstraint(Sketcher.Constraint("Vertical", 2, 3, 3, 3))
sketch4.addConstraint(Sketcher.Constraint("Vertical", 3, 3, 4, 3))
sketch4.addConstraint(Sketcher.Constraint("Vertical", 4, 3, 5, 3))
sketch4.addConstraint(Sketcher.Constraint("Vertical", 5, 3, 6, 3))
sketch4.addConstraint(Sketcher.Constraint("Vertical", 6, 3, 7, 3))
sketch4.addConstraint(Sketcher.Constraint("Vertical", 7, 3, 8, 3))
sketch4.addConstraint(Sketcher.Constraint("Vertical", 8, 3, 9, 3))
sketch4.addConstraint(Sketcher.Constraint("Vertical", 9, 3, 10, 3))
sketch4.addConstraint(Sketcher.Constraint("Vertical", 10, 3, 11, 3))
sketch4.addConstraint(Sketcher.Constraint("Vertical", 11, 3, 12, 3))
sketch4.addConstraint(Sketcher.Constraint("Vertical", 12, 3, 13, 3))
sketch4.addConstraint(Sketcher.Constraint("Vertical", 13, 3, 14, 3))
sketch4.addConstraint(Sketcher.Constraint("Vertical", 14, 3, 15, 3))
sketch4.addConstraint(Sketcher.Constraint("Vertical", 15, 3, 16, 3))
sketch4.addConstraint(Sketcher.Constraint("Vertical", 16, 3, 17, 3))
sketch4.addConstraint(Sketcher.Constraint("Vertical", 17, 3, 18, 3))
sketch4.addConstraint(Sketcher.Constraint("Vertical", 18, 3, 19, 3))
sketch4.addConstraint(Sketcher.Constraint("Vertical", 19, 3, 20, 3))
sketch4.addConstraint(Sketcher.Constraint("Vertical", 20, 3, 21, 3))
sketch4.addConstraint(Sketcher.Constraint("Vertical", 21, 3, 22, 3))
sketch4.addConstraint(Sketcher.Constraint("Vertical", 22, 3, 23, 3))
sketch4.addConstraint(Sketcher.Constraint("Vertical", 23, 3, 24, 3))
sketch4.addConstraint(Sketcher.Constraint("Vertical", 24, 3, 25, 3))
sketch4.addConstraint(Sketcher.Constraint("Vertical", 25, 3, 26, 3))
sketch4.addConstraint(Sketcher.Constraint("Vertical", 26, 3, 27, 3))
sketch4.addConstraint(Sketcher.Constraint("Vertical", 27, 3, 28, 3))
sketch4.addConstraint(Sketcher.Constraint("Vertical", 28, 3, 29, 3))
sketch4.addConstraint(Sketcher.Constraint("Diameter", 0, Q("0.163 in")))
sketch4.addConstraint(Sketcher.Constraint("DistanceY", -1, 1, 0, 3, Q("28 in")))
sketch4.addConstraint(Sketcher.Constraint("DistanceY", -1, 1, 1, 3, Q("29 in")))
sketch4.addConstraint(Sketcher.Constraint("DistanceY", -1, 1, 2, 3, Q("27 in")))
sketch4.addConstraint(Sketcher.Constraint("DistanceY", -1, 1, 3, 3, Q("26 in")))
sketch4.addConstraint(Sketcher.Constraint("DistanceY", -1, 1, 4, 3, Q("25 in")))
sketch4.addConstraint(Sketcher.Constraint("DistanceY", -1, 1, 5, 3, Q("24 in")))
sketch4.addConstraint(Sketcher.Constraint("DistanceY", -1, 1, 6, 3, Q("23 in")))
sketch4.addConstraint(Sketcher.Constraint("DistanceY", -1, 1, 7, 3, Q("22 in")))
sketch4.addConstraint(Sketcher.Constraint("DistanceY", -1, 1, 8, 3, Q("21 in")))
sketch4.addConstraint(Sketcher.Constraint("DistanceY", -1, 1, 9, 3, Q("20 in")))
sketch4.addConstraint(Sketcher.Constraint("DistanceY", -1, 1, 10, 3, Q("19 in")))
sketch4.addConstraint(Sketcher.Constraint("DistanceY", -1, 1, 11, 3, Q("18 in")))
sketch4.addConstraint(Sketcher.Constraint("DistanceY", -1, 1, 12, 3, Q("17 in")))
sketch4.addConstraint(Sketcher.Constraint("DistanceY", -1, 1, 13, 3, Q("16 in")))
sketch4.addConstraint(Sketcher.Constraint("DistanceY", -1, 1, 14, 3, Q("15 in")))
sketch4.addConstraint(Sketcher.Constraint("DistanceY", -1, 1, 15, 3, Q("14 in")))
sketch4.addConstraint(Sketcher.Constraint("DistanceY", -1, 1, 16, 3, Q("13 in")))
sketch4.addConstraint(Sketcher.Constraint("DistanceY", -1, 1, 17, 3, Q("12 in")))
sketch4.addConstraint(Sketcher.Constraint("DistanceY", -1, 1, 18, 3, Q("11 in")))
sketch4.addConstraint(Sketcher.Constraint("DistanceY", -1, 1, 19, 3, Q("10 in")))
sketch4.addConstraint(Sketcher.Constraint("DistanceY", -1, 1, 20, 3, Q("9 in")))
sketch4.addConstraint(Sketcher.Constraint("DistanceY", -1, 1, 21, 3, Q("8 in")))
sketch4.addConstraint(Sketcher.Constraint("DistanceY", -1, 1, 22, 3, Q("7 in")))
sketch4.addConstraint(Sketcher.Constraint("DistanceY", -1, 1, 23, 3, Q("6 in")))
sketch4.addConstraint(Sketcher.Constraint("DistanceY", -1, 1, 24, 3, Q("5 in")))
sketch4.addConstraint(Sketcher.Constraint("DistanceY", -1, 1, 25, 3, Q("4 in")))
sketch4.addConstraint(Sketcher.Constraint("DistanceY", -1, 1, 26, 3, Q("3 in")))
sketch4.addConstraint(Sketcher.Constraint("DistanceY", -1, 1, 27, 3, Q("2 in")))
sketch4.addConstraint(Sketcher.Constraint("DistanceY", -1, 1, 28, 3, Q("1 in")))
sketch4.addConstraint(Sketcher.Constraint("DistanceX", -1, 1, 0, 3, Q("0.5 in")))
doc.recompute()
hole2 = body.newObject("PartDesign::Hole", "Hole001")
hole2.Profile = sketch4
hole2.ThreadType = "None"
hole2.Diameter = Q("0.163 in")
hole2.DepthType = "Dimension"
hole2.Depth = Q("1 in")
hole2.DrillPoint = "Flat"
hole2.Reversed = True
doc.recompute()

chamfer = body.newObject("PartDesign::Chamfer", "Chamfer")
chamfer.Base = (hole2, edges_at(hole2, [
    (25.4, 1.143, -749.3),
    (1.143, 25.4, 749.3),
    (1.143, 25.4, -749.3),
    (25.4, 1.143, 749.3),
]))
chamfer.Size = Q("0.085 in")
doc.recompute()

fillet = body.newObject("PartDesign::Fillet", "Fillet")
fillet.Base = (chamfer, edges_at(chamfer, [(2.286, 2.286, 0)]))
fillet.Radius = Q("0.032 in")
doc.recompute()

fillet2 = body.newObject("PartDesign::Fillet", "Fillet001")
fillet2.Base = (fillet, edges_at(fillet, [(0, 0, 0)]))
fillet2.Radius = Q("0.122 in")

sketch5 = body.newObject("Sketcher::SketchObject", "Sketch004")
sketch5.AttachmentSupport = (doc.getObject("XY_Plane"), [""])
sketch5.MapMode = "FlatFace"
sketch5.AttachmentOffset = App.Placement(V(0, 0, 29.5 * 25.4), App.Rotation())
sketch5.addGeometry(Part.LineSegment(V(-46, 43, 0), V(-46, -37, 0)), False)
sketch5.addGeometry(Part.LineSegment(V(-46, -37, 0), V(50, -37, 0)), False)
sketch5.addGeometry(Part.LineSegment(V(50, -37, 0), V(50, 43, 0)), False)
sketch5.addGeometry(Part.LineSegment(V(50, 43, 0), V(-46, 43, 0)), False)
sketch5.addConstraint(Sketcher.Constraint("Coincident", 0, 2, 1, 1))
sketch5.addConstraint(Sketcher.Constraint("Coincident", 1, 2, 2, 1))
sketch5.addConstraint(Sketcher.Constraint("Coincident", 2, 2, 3, 1))
sketch5.addConstraint(Sketcher.Constraint("Coincident", 3, 2, 0, 1))
sketch5.addConstraint(Sketcher.Constraint("Vertical", 0))
sketch5.addConstraint(Sketcher.Constraint("Horizontal", 1))
sketch5.addConstraint(Sketcher.Constraint("Vertical", 2))
sketch5.addConstraint(Sketcher.Constraint("Horizontal", 3))
sketch5.addConstraint(Sketcher.Constraint("DistanceY", 0, 2, 0, 1, 79.33833))
sketch5.addConstraint(Sketcher.Constraint("DistanceX", 1, 1, 1, 2, 95.882964))
sketch5.addConstraint(Sketcher.Constraint("DistanceX", 0, 2, -1, 1, 45.655482))
sketch5.addConstraint(Sketcher.Constraint("DistanceY", 0, 2, -1, 1, 36.570365))
pocket2 = body.newObject("PartDesign::Pocket", "Pocket001")
pocket2.Profile = sketch5
pocket2.Length = Q("54 in")

sketch6 = body.newObject("Sketcher::SketchObject", "Sketch005")
sketch6.AttachmentSupport = (doc.getObject("XY_Plane"), [""])
sketch6.MapMode = "FlatFace"
sketch6.AttachmentOffset = App.Placement(V(0, 0, -24.5 * 25.4), App.Rotation())
sketch6.addGeometry(Part.LineSegment(V(-24, 35, 0), V(-24, -32, 0)), False)
sketch6.addGeometry(Part.LineSegment(V(-24, -32, 0), V(28, -32, 0)), False)
sketch6.addGeometry(Part.LineSegment(V(28, -32, 0), V(28, 35, 0)), False)
sketch6.addGeometry(Part.LineSegment(V(28, 35, 0), V(-24, 35, 0)), False)
sketch6.addConstraint(Sketcher.Constraint("Coincident", 0, 2, 1, 1))
sketch6.addConstraint(Sketcher.Constraint("Coincident", 1, 2, 2, 1))
sketch6.addConstraint(Sketcher.Constraint("Coincident", 2, 2, 3, 1))
sketch6.addConstraint(Sketcher.Constraint("Coincident", 3, 2, 0, 1))
sketch6.addConstraint(Sketcher.Constraint("Vertical", 0))
sketch6.addConstraint(Sketcher.Constraint("Horizontal", 1))
sketch6.addConstraint(Sketcher.Constraint("Vertical", 2))
sketch6.addConstraint(Sketcher.Constraint("Horizontal", 3))
sketch6.addConstraint(Sketcher.Constraint("DistanceX", 1, 1, 1, 2, 51.462523))
sketch6.addConstraint(Sketcher.Constraint("DistanceY", 0, 2, 0, 1, 66.676735))
sketch6.addConstraint(Sketcher.Constraint("DistanceX", 0, 2, -1, 1, 23.876086))
sketch6.addConstraint(Sketcher.Constraint("DistanceY", 0, 2, -1, 1, 31.589518))
pocket3 = body.newObject("PartDesign::Pocket", "Pocket002")
pocket3.Profile = sketch6
pocket3.Length = Q("0.09 in")

sketch7 = body.newObject("Sketcher::SketchObject", "Sketch006")
sketch7.AttachmentSupport = (doc.getObject("XZ_Plane"), [""])
sketch7.MapMode = "FlatFace"
sketch7.AttachmentOffset = App.Placement(V(0, 0, -0.09 * 25.4), App.Rotation())
sketch7.addGeometry(Part.LineSegment(V(3, -686, 0), V(3, -625, 0)), False)
sketch7.addGeometry(Part.LineSegment(V(3, -625, 0), V(25, -625, 0)), False)
sketch7.addGeometry(Part.LineSegment(V(25, -625, 0), V(25, -686, 0)), False)
sketch7.addGeometry(Part.LineSegment(V(25, -686, 0), V(3, -686, 0)), False)
sketch7.addConstraint(Sketcher.Constraint("Coincident", 0, 2, 1, 1))
sketch7.addConstraint(Sketcher.Constraint("Coincident", 1, 2, 2, 1))
sketch7.addConstraint(Sketcher.Constraint("Coincident", 2, 2, 3, 1))
sketch7.addConstraint(Sketcher.Constraint("Coincident", 3, 2, 0, 1))
sketch7.addConstraint(Sketcher.Constraint("Vertical", 0))
sketch7.addConstraint(Sketcher.Constraint("Horizontal", 1))
sketch7.addConstraint(Sketcher.Constraint("Vertical", 2))
sketch7.addConstraint(Sketcher.Constraint("Horizontal", 3))
sketch7.addConstraint(Sketcher.Constraint("DistanceX", -1, 1, 1, 2, Q("1 in")))
sketch7.addConstraint(Sketcher.Constraint("DistanceY", 2, 2, -1, 1, Q("27 in")))
sketch7.addConstraint(Sketcher.Constraint("DistanceY", 0, 1, 0, 2, Q("2.41 in")))
sketch7.addConstraint(Sketcher.Constraint("DistanceX", 1, 1, 1, 2, Q("0.878 in")))
pocket4 = body.newObject("PartDesign::Pocket", "Pocket003")
pocket4.Profile = sketch7
pocket4.Length = Q("0.1 in")
pocket4.Reversed = True

doc.recompute()
